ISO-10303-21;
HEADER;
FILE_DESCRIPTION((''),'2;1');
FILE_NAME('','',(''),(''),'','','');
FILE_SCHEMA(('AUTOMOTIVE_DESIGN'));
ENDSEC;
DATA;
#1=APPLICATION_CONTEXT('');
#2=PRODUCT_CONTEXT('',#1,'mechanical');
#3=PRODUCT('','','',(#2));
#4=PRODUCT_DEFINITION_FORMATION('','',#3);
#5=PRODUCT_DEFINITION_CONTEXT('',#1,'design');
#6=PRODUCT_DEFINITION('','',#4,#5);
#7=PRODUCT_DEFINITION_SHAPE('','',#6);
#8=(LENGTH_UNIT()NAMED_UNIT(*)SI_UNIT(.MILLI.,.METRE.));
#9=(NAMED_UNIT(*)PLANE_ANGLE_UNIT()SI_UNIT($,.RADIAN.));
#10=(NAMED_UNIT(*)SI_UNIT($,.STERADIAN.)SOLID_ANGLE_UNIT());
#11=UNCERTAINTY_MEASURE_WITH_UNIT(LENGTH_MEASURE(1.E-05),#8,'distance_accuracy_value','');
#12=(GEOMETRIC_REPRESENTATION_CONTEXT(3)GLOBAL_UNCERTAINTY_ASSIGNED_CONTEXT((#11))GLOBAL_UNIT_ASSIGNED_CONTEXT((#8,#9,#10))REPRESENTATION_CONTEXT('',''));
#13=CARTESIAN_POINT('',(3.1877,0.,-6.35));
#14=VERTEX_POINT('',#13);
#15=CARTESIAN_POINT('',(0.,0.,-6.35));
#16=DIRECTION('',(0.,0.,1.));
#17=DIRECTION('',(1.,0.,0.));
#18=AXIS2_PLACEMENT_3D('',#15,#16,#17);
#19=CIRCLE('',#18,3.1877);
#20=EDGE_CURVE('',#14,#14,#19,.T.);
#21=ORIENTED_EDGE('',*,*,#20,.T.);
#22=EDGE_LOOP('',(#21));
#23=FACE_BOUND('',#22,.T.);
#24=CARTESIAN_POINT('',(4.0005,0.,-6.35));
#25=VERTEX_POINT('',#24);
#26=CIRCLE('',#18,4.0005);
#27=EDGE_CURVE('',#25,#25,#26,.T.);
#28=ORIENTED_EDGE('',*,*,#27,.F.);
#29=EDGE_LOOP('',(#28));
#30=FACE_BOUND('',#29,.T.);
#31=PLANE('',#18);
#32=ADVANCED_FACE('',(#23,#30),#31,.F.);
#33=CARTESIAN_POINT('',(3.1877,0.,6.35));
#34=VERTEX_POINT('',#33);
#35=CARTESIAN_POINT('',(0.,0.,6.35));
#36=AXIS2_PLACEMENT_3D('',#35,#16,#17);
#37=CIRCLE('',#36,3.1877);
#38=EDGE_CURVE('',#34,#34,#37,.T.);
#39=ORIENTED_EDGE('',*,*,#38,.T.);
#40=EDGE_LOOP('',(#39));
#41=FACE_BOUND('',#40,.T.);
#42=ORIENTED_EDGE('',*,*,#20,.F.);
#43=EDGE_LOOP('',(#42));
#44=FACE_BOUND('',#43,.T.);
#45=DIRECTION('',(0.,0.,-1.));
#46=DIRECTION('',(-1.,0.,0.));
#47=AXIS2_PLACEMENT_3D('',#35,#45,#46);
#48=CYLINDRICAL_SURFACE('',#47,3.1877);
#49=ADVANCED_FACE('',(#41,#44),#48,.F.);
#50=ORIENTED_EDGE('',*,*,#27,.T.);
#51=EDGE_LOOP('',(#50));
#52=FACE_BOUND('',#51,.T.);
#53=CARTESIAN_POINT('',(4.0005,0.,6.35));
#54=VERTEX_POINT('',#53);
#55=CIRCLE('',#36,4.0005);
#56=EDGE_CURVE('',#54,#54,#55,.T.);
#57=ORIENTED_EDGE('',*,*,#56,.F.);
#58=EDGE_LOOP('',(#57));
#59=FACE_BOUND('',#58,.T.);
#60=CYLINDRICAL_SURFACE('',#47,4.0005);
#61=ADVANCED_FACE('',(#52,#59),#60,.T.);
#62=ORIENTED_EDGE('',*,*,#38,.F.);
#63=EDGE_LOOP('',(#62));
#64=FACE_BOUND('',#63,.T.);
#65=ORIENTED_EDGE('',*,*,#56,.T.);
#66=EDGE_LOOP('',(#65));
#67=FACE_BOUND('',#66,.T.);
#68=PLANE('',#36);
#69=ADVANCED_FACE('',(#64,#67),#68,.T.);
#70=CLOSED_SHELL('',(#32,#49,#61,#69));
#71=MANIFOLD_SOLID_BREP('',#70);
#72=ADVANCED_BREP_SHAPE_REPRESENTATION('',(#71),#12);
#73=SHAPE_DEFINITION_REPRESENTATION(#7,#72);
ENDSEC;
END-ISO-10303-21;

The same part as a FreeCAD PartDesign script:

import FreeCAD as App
import Part
import Sketcher
Q = App.Units.Quantity

doc = App.newDocument("Part")
params = doc.addObject("Spreadsheet::Sheet", "Params")
for row, (alias, value) in enumerate([
    ("sketch1_diameter", "0.315 in"),
    ("sketch1_diameter2", "0.251 in"),
    ("pad1_length", "0.5 in"),
], start=1):
    params.set(f"A{row}", alias)
    params.set(f"B{row}", "=" + value)
    params.setAlias(f"B{row}", alias)

body = doc.addObject("PartDesign::Body", "Body")

# Sketch on XY plane
sketch1 = body.newObject("Sketcher::SketchObject", "Sketch")
sketch1.AttachmentSupport = (doc.getObject("XY_Plane"), [""])
sketch1.MapMode = "FlatFace"
sketch1.addGeometry(Part.Circle(App.Vector(0, 0, 0), App.Vector(0, 0, 1), 4.0005), False)
sketch1.addGeometry(Part.Circle(App.Vector(0, 0, 0), App.Vector(0, 0, 1), 3.1877), False)
sketch1.addConstraint(Sketcher.Constraint("Coincident", 0, 3, -1, 1))
sketch1.addConstraint(Sketcher.Constraint("Coincident", 1, 3, -1, 1))
sketch1.addConstraint(Sketcher.Constraint("Diameter", 0, Q("0.315 in")))
sketch1.addConstraint(Sketcher.Constraint("Diameter", 1, Q("0.251 in")))
sketch1.setExpression("Constraints[2]", "Params.sketch1_diameter")
sketch1.setExpression("Constraints[3]", "Params.sketch1_diameter2")
pad1 = body.newObject("PartDesign::Pad", "Pad")
pad1.Profile = sketch1
pad1.setExpression("Length", "Params.pad1_length")
pad1.Midplane = True

doc.recompute()
